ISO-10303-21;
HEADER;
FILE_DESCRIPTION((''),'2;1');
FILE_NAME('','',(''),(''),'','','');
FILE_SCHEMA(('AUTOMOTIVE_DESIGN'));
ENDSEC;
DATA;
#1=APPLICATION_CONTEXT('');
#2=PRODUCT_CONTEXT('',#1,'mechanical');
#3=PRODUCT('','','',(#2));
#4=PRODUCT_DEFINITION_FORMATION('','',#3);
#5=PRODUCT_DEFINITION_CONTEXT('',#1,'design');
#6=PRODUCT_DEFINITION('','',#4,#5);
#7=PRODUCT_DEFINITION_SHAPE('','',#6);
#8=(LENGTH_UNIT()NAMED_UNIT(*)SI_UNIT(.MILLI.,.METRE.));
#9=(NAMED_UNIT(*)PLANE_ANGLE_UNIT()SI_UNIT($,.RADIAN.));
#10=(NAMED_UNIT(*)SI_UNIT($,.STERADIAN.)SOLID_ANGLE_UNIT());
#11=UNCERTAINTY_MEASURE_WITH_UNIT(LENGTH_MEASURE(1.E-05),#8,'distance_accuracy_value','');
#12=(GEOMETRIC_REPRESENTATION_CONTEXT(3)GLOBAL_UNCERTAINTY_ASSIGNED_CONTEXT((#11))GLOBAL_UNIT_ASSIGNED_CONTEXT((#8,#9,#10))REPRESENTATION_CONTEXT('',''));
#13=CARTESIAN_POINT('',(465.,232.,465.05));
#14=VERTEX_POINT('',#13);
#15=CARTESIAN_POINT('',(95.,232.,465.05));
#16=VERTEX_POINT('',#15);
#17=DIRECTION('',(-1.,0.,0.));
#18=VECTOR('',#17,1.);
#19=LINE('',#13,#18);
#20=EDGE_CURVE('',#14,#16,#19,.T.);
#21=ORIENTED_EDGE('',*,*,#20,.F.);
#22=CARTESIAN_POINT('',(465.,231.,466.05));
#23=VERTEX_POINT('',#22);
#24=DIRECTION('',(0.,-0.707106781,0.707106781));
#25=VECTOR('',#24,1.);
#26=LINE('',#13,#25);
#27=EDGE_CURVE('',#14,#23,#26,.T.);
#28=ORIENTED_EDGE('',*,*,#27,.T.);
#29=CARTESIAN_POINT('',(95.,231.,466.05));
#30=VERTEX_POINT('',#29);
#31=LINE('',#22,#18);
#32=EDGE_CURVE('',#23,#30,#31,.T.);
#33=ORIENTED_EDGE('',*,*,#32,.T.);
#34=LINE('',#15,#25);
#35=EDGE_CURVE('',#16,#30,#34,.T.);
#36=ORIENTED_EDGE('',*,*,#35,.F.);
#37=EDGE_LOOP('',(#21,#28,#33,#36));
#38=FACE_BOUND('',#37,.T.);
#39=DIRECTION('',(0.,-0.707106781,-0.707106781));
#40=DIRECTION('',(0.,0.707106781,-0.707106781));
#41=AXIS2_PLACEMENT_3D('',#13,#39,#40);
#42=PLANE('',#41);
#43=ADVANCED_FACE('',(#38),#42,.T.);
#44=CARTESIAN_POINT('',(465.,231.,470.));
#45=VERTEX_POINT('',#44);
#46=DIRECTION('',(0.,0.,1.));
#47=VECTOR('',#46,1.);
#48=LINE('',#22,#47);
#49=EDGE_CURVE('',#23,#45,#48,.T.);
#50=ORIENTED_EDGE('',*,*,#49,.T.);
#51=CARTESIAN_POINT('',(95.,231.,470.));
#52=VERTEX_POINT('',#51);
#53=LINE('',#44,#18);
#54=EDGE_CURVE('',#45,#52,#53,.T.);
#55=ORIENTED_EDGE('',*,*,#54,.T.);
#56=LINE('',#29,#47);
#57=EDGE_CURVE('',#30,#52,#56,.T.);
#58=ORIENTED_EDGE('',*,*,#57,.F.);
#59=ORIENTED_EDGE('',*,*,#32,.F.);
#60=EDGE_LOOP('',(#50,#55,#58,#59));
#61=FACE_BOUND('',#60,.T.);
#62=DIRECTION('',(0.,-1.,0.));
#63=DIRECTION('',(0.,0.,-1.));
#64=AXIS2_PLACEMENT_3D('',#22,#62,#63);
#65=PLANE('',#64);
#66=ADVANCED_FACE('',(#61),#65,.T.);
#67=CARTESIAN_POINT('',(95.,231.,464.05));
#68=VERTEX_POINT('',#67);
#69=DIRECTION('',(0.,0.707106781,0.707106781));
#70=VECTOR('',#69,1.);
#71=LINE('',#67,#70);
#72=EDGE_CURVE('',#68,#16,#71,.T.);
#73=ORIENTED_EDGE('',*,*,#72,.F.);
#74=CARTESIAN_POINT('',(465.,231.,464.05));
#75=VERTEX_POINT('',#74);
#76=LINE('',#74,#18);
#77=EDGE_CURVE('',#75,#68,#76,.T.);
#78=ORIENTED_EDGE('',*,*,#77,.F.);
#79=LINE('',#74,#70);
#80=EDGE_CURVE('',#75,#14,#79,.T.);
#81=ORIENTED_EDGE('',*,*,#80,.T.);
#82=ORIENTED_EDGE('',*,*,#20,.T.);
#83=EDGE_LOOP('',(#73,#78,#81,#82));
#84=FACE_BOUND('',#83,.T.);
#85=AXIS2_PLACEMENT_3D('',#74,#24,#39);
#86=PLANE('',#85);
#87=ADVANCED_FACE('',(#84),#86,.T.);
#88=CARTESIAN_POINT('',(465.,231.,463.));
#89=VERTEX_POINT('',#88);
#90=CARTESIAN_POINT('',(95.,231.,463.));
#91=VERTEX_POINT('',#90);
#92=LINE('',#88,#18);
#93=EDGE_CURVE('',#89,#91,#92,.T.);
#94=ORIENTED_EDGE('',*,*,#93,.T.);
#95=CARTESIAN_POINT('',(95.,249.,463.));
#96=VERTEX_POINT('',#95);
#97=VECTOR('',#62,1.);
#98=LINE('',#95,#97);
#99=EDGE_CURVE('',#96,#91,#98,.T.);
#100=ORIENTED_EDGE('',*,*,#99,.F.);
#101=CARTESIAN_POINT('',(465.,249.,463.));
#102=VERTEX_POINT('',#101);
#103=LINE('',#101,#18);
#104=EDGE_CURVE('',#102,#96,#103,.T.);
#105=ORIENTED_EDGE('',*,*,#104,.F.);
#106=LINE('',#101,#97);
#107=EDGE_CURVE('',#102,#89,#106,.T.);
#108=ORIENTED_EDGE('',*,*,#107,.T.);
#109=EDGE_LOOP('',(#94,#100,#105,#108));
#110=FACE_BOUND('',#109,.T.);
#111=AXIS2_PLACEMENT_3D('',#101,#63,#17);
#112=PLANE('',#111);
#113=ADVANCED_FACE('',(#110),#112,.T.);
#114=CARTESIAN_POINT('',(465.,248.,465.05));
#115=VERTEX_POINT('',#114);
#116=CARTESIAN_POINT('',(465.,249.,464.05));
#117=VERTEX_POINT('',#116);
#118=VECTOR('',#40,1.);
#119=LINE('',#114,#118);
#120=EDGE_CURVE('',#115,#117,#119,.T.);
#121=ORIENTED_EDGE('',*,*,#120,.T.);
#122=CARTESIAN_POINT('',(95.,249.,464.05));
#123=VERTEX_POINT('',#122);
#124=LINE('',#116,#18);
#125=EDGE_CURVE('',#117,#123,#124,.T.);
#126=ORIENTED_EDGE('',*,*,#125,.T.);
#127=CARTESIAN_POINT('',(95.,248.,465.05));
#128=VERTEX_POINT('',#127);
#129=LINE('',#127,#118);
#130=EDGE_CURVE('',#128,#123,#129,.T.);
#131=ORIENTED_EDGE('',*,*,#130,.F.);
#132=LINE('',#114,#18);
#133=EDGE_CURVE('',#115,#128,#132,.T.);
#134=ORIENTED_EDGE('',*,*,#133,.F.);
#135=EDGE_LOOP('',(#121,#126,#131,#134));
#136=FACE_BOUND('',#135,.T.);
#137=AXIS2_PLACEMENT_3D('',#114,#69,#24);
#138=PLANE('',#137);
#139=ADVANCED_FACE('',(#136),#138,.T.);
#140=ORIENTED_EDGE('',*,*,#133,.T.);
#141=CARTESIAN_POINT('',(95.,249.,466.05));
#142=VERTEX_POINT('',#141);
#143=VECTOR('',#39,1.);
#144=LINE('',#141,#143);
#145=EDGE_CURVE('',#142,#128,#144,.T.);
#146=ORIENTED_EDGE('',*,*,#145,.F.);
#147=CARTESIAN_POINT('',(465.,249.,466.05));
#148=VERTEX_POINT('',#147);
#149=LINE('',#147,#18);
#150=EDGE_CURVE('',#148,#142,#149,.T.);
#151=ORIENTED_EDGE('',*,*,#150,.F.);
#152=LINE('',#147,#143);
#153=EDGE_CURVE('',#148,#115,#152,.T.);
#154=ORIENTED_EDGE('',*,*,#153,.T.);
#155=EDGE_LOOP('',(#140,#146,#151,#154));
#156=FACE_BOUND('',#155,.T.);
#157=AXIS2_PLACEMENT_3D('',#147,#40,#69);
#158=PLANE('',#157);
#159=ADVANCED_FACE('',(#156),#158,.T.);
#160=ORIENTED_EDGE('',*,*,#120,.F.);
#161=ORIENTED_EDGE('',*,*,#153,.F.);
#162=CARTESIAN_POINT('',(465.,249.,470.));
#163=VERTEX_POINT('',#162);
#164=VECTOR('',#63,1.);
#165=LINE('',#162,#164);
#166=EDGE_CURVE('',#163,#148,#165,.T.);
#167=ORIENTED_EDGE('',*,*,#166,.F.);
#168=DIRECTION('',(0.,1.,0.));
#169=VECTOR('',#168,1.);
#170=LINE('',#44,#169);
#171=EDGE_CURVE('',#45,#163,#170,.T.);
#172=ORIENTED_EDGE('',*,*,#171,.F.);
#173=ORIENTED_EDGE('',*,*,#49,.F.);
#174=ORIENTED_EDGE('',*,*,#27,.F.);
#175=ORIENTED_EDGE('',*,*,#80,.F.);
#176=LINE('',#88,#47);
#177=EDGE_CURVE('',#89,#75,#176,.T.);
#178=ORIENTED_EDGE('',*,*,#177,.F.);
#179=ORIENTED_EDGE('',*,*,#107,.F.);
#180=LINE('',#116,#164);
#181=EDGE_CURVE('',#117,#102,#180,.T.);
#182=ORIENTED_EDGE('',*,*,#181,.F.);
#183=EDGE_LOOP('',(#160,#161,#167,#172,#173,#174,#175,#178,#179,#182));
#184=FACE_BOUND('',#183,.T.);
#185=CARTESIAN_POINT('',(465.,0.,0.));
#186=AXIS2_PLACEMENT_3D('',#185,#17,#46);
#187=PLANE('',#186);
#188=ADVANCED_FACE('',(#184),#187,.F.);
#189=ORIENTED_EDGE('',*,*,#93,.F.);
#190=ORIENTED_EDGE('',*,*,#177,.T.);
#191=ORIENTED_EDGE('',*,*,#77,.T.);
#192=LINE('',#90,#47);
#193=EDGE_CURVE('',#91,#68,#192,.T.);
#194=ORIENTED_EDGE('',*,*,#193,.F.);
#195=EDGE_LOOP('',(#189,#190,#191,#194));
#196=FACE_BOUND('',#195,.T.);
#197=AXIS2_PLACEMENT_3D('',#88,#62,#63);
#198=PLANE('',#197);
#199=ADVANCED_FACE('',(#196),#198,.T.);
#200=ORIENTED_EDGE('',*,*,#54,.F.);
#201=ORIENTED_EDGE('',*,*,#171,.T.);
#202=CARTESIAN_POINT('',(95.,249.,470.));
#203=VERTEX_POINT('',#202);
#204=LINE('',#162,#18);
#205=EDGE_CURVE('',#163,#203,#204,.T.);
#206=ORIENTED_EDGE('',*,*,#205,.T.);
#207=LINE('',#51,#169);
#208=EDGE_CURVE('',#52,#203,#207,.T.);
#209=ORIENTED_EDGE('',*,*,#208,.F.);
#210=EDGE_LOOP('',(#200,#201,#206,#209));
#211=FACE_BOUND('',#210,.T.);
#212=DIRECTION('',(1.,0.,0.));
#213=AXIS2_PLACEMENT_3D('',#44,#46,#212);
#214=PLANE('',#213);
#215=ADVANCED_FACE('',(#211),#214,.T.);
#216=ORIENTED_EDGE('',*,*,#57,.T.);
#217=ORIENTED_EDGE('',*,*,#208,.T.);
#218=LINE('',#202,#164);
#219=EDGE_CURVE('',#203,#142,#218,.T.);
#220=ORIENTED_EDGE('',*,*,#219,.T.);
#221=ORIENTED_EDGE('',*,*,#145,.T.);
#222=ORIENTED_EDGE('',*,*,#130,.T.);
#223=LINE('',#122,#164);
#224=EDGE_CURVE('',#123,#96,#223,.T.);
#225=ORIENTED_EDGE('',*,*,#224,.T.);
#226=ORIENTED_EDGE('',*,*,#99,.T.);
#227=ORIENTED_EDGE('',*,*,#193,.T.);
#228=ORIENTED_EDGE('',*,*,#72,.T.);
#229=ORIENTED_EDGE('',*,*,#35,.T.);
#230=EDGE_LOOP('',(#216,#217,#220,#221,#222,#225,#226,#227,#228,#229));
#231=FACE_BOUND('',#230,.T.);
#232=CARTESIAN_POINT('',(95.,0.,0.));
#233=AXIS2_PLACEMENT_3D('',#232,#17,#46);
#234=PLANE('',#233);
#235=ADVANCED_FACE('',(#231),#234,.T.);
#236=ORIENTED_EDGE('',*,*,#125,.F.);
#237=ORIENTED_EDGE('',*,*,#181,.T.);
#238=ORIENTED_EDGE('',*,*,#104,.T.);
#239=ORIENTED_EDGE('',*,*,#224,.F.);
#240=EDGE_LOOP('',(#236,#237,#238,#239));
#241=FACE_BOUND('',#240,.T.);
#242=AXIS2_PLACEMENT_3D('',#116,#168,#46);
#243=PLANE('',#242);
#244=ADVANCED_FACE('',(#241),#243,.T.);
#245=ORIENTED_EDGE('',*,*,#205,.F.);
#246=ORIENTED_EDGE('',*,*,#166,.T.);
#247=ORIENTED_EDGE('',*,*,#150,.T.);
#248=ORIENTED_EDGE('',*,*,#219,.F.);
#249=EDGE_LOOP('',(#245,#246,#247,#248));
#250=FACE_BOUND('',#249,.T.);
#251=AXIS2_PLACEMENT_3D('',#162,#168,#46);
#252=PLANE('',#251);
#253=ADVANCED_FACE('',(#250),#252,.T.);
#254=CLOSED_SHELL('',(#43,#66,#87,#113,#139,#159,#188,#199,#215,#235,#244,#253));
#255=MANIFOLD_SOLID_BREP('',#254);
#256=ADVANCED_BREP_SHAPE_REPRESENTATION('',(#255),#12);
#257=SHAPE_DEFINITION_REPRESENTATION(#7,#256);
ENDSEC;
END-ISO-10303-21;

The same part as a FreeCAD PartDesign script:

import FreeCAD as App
import Part
import Sketcher
from FreeCAD import Vector


def add_polygon(sketch, points):
    """Adds a closed chain of lines whose ends are joined by coincident constraints."""
    first, n = sketch.GeometryCount, len(points)
    for a, b in zip(points, points[1:] + points[:1]):
        sketch.addGeometry(Part.LineSegment(App.Vector(*a, 0), App.Vector(*b, 0)), False)
    for i in range(n):
        sketch.addConstraint(Sketcher.Constraint("Coincident", first + i, 2, first + (i + 1) % n, 1))

doc = App.newDocument("Part")
body = doc.addObject("PartDesign::Body", "Body")

# Sketch on YZ plane
sketch1 = body.newObject("Sketcher::SketchObject", "Sketch")
sketch1.AttachmentSupport = (doc.getObject("YZ_Plane"), [""])
sketch1.MapMode = "FlatFace"
sketch1.AttachmentOffset = App.Placement(Vector(0, 0, 95), App.Rotation())
add_polygon(sketch1, [(249, 463), (231, 463), (231, 464.05), (232, 465.05), (231, 466.05), (231, 470), (249, 470), (249, 466.05), (248, 465.05), (249, 464.05)])  # lines 0-9
sketch1.addConstraint(Sketcher.Constraint("Horizontal", 0))
sketch1.addConstraint(Sketcher.Constraint("Vertical", 1))
sketch1.addConstraint(Sketcher.Constraint("Vertical", 4))
sketch1.addConstraint(Sketcher.Constraint("Horizontal", 5))
sketch1.addConstraint(Sketcher.Constraint("Vertical", 6))
sketch1.addConstraint(Sketcher.Constraint("Vertical", 9))
sketch1.addConstraint(Sketcher.Constraint("Perpendicular", 2, 3))
sketch1.addConstraint(Sketcher.Constraint("Perpendicular", 3, 7))
sketch1.addConstraint(Sketcher.Constraint("Perpendicular", 7, 8))
sketch1.addConstraint(Sketcher.Constraint("Horizontal", 3, 2, 6, 2))
sketch1.addConstraint(Sketcher.Constraint("Horizontal", 2, 2, 7, 2))
sketch1.addConstraint(Sketcher.Constraint("Horizontal", 1, 2, 8, 2))
sketch1.addConstraint(Sketcher.Constraint("Vertical", 1, 2, 3, 2))
sketch1.addConstraint(Sketcher.Constraint("Vertical", 6, 2, 8, 2))
sketch1.addConstraint(Sketcher.Constraint("DistanceX", 0, 2, 0, 1, 18.0))
sketch1.addConstraint(Sketcher.Constraint("DistanceX", -1, 1, 0, 2, 231.0))
sketch1.addConstraint(Sketcher.Constraint("DistanceY", -1, 1, 0, 2, 463.0))
sketch1.addConstraint(Sketcher.Constraint("DistanceX", -1, 1, 2, 2, 232.0))
sketch1.addConstraint(Sketcher.Constraint("DistanceY", -1, 1, 4, 2, 470.0))
sketch1.addConstraint(Sketcher.Constraint("DistanceY", 1, 1, 1, 2, 1.05))
pad1 = body.newObject("PartDesign::Pad", "Pad")
pad1.Profile = sketch1
pad1.Length = 370

doc.recompute()
